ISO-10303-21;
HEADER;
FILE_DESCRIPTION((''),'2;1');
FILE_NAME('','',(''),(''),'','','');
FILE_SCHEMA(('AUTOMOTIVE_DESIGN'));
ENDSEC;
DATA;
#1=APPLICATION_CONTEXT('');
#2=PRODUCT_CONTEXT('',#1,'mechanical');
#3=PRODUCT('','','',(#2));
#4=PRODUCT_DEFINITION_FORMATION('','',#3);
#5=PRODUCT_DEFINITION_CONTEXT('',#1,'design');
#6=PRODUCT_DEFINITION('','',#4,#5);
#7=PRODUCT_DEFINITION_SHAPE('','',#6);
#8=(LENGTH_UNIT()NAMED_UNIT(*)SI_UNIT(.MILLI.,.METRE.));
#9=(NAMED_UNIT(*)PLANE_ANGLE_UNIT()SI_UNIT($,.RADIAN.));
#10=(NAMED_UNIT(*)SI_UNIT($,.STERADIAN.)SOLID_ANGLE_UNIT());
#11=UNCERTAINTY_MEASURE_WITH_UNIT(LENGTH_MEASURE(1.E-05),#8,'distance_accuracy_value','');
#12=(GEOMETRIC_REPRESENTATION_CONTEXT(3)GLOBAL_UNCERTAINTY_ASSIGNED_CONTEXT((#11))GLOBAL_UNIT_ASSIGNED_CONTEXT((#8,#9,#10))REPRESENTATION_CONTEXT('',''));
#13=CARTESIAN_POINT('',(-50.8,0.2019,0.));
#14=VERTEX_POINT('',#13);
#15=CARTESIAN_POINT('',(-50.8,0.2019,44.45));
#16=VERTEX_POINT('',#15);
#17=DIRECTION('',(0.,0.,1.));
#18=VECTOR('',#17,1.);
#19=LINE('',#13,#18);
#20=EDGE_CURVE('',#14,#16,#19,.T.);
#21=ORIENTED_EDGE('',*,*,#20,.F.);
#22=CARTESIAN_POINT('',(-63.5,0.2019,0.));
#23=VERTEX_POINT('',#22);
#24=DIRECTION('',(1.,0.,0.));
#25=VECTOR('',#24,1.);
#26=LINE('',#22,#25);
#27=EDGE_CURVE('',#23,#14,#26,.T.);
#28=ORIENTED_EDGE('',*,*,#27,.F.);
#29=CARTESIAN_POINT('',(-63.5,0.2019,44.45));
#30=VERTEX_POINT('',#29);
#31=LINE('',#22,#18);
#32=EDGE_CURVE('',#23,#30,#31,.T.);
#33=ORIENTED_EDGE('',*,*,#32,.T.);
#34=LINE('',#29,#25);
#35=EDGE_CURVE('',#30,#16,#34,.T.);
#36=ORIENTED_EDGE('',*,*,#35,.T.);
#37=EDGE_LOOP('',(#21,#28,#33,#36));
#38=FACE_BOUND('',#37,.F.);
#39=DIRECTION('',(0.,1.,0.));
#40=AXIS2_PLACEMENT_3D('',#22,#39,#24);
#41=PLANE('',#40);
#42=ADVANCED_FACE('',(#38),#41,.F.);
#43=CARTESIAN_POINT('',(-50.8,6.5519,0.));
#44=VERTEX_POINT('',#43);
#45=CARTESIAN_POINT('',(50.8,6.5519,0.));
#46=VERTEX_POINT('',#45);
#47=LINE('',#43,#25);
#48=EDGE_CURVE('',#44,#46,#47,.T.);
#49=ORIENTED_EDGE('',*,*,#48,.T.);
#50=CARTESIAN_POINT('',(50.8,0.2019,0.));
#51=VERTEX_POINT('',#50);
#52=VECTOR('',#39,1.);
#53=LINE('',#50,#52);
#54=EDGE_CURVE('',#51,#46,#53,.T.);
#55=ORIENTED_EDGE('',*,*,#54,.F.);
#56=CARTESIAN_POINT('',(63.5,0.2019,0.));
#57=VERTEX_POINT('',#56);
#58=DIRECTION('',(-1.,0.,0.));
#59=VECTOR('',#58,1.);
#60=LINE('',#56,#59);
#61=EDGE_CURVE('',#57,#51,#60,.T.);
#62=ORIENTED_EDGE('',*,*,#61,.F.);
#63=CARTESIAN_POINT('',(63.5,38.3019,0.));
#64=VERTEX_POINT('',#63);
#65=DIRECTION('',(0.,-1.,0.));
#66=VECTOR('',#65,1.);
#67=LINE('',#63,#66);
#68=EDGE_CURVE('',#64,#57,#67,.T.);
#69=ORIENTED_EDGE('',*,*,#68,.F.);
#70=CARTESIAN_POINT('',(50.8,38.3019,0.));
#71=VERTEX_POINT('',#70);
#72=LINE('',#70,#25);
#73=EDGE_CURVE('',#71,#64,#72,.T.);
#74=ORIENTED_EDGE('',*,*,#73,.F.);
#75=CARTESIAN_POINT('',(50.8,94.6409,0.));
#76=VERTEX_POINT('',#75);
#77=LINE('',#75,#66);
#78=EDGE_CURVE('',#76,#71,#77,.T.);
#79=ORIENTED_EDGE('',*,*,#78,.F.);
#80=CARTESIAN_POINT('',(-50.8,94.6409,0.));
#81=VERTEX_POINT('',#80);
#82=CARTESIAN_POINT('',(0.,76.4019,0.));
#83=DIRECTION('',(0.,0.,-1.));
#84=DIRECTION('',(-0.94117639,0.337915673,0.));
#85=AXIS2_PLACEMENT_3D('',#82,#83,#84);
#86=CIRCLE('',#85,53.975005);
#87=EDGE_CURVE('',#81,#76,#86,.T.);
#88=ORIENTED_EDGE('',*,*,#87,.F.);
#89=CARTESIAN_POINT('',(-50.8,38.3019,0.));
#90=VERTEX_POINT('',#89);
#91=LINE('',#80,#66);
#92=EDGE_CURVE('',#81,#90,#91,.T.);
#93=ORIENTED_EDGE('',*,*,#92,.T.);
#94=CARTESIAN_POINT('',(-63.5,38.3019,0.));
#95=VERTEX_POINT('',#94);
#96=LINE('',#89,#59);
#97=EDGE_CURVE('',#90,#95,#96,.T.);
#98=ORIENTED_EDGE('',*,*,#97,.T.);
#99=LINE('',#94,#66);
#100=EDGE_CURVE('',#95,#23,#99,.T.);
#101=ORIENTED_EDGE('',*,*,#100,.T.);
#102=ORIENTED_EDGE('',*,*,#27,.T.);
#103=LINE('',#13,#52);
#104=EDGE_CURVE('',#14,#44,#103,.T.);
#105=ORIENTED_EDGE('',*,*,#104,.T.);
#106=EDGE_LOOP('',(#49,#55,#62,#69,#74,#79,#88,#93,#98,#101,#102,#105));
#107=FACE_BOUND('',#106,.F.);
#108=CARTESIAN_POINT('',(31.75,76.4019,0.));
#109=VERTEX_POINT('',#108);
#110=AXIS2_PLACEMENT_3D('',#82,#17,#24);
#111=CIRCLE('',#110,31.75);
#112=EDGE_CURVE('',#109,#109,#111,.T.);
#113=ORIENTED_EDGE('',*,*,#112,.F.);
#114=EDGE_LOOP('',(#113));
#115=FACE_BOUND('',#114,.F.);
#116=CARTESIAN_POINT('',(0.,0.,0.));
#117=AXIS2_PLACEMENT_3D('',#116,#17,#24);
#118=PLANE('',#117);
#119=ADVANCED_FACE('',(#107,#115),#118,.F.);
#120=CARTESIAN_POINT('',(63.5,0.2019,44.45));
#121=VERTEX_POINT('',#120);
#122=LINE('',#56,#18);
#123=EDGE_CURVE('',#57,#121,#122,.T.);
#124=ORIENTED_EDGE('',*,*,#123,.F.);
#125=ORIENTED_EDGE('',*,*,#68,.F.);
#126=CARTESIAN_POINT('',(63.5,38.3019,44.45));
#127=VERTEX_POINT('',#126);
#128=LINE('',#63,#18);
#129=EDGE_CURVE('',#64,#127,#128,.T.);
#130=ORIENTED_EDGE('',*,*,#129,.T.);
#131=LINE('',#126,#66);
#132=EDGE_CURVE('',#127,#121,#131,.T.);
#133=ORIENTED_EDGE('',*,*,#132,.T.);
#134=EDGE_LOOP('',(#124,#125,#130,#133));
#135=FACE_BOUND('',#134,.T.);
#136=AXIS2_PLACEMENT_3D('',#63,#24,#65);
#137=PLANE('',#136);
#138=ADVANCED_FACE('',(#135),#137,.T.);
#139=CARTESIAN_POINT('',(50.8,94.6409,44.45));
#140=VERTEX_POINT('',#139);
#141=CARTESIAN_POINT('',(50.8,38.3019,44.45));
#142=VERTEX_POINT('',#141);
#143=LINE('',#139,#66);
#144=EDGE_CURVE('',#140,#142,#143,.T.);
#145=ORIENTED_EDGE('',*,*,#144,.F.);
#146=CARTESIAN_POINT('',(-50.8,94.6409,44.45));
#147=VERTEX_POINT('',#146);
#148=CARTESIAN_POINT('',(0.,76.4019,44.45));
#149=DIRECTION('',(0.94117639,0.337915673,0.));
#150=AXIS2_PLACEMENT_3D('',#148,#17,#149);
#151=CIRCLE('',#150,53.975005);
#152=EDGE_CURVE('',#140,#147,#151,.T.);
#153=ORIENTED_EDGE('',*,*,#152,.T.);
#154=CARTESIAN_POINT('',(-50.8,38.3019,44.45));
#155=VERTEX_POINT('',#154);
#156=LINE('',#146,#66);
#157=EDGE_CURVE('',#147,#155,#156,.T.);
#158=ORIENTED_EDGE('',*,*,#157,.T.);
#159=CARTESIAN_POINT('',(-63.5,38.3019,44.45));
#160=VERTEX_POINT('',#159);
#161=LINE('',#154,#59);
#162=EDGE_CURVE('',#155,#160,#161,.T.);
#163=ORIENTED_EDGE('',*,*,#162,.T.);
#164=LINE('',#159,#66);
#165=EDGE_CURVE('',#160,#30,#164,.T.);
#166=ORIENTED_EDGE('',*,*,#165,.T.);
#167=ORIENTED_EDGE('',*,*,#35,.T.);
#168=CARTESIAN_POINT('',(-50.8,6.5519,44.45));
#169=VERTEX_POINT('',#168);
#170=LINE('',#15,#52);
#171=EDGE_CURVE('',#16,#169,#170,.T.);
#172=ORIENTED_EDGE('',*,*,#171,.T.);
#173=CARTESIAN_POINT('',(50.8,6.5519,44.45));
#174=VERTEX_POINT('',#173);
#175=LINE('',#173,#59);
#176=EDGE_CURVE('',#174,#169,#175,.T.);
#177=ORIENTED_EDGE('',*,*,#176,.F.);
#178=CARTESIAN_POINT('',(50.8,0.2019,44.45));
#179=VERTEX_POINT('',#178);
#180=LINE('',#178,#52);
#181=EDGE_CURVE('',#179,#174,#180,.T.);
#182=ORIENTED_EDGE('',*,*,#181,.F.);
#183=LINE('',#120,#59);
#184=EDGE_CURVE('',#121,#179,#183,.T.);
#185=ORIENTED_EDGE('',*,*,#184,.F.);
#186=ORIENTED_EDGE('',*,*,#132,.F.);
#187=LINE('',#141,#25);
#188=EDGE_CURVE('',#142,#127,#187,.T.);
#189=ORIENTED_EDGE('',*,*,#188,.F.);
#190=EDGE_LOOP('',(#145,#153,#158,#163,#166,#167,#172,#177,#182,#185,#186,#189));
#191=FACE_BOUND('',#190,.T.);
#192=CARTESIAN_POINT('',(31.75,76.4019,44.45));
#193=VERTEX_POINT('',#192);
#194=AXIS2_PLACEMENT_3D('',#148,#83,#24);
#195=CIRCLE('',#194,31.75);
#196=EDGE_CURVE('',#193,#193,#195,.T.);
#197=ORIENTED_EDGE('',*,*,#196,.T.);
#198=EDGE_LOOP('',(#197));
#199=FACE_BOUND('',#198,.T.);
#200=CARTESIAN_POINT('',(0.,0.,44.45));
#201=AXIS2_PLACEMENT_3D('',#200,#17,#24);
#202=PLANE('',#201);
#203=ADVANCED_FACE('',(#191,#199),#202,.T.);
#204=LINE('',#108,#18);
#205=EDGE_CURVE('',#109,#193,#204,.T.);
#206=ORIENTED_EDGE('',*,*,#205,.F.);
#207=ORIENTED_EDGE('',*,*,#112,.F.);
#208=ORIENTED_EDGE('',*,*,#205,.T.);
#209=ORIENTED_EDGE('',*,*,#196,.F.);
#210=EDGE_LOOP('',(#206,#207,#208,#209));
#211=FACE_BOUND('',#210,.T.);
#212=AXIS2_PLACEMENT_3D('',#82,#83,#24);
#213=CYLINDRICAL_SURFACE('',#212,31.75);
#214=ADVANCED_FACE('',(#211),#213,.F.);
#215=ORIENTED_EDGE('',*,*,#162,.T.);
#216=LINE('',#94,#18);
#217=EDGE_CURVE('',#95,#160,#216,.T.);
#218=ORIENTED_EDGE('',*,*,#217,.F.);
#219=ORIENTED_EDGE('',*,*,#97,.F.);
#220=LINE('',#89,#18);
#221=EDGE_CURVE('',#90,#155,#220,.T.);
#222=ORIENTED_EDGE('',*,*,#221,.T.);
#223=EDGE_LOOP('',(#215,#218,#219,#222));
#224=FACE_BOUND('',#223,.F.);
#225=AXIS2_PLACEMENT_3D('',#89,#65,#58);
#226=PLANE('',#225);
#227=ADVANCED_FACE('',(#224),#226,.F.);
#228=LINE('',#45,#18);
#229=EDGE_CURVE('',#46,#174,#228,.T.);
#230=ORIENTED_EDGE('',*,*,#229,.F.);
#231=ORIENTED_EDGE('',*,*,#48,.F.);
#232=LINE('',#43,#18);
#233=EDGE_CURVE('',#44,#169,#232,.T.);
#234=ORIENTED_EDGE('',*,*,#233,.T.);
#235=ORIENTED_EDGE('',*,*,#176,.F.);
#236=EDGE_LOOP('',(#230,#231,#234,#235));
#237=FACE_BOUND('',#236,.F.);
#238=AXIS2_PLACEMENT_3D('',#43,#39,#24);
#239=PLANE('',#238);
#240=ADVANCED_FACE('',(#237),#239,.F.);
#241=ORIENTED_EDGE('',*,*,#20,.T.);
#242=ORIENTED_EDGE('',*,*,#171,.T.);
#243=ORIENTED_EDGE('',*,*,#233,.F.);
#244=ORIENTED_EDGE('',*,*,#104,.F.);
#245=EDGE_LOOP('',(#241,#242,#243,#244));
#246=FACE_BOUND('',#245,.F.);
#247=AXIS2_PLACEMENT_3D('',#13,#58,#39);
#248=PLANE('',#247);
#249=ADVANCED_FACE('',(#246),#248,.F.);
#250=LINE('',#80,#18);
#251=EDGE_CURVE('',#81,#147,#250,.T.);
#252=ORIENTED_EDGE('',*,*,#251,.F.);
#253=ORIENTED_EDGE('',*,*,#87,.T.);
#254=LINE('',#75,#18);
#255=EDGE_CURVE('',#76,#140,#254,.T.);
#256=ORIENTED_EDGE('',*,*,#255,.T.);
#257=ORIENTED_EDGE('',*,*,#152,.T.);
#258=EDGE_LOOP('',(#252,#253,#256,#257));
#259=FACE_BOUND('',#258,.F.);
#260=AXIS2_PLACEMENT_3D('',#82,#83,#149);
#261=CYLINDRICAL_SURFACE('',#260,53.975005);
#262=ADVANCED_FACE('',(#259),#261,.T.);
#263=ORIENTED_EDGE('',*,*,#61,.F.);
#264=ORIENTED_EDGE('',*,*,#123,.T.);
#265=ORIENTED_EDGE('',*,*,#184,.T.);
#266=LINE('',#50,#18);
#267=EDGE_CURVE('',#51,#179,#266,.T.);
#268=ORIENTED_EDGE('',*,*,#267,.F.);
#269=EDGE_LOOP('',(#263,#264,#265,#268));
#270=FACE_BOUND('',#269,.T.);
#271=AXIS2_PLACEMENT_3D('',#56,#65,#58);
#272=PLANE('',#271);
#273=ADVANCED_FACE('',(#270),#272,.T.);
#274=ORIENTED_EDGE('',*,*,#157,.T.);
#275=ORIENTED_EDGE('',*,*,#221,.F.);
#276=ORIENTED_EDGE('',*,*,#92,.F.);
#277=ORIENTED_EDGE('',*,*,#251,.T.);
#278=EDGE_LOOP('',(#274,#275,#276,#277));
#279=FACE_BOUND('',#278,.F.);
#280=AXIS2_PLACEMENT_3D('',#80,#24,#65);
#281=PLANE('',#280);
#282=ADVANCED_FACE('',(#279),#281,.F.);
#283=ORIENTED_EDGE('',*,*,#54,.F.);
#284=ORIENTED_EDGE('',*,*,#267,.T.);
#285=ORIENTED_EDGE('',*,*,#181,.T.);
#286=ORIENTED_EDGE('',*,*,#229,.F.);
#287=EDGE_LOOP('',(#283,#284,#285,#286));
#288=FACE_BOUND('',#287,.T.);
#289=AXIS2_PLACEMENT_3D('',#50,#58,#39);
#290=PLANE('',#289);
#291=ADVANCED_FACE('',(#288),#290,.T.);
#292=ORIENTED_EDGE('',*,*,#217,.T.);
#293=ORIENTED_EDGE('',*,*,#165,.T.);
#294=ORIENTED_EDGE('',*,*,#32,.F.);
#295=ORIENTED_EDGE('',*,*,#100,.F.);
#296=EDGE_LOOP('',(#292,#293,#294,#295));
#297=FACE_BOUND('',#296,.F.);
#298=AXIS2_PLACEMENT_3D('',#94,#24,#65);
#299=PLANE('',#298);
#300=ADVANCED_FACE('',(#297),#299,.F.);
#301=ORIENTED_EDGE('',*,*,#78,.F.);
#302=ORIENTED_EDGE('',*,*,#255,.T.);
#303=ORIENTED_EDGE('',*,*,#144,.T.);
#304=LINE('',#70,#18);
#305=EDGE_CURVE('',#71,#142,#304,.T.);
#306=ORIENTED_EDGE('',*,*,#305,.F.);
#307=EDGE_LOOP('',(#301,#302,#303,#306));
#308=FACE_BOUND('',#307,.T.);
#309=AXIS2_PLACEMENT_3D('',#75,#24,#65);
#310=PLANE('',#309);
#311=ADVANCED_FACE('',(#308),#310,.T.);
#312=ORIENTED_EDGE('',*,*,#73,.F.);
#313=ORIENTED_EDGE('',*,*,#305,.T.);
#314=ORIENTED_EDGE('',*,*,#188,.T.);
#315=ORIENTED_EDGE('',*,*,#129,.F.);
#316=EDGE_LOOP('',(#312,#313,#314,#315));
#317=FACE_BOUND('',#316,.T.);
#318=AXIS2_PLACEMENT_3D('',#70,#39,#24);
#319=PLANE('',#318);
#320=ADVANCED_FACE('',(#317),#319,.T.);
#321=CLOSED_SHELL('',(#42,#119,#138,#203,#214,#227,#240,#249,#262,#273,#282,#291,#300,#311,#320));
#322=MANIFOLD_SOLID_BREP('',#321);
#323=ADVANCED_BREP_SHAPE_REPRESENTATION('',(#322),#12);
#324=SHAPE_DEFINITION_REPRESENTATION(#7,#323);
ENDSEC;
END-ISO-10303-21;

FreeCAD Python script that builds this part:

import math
import FreeCAD as App
import Part
import Sketcher

V = App.Vector
Q = App.Units.Quantity

doc = App.newDocument("Part")
params = doc.addObject("Spreadsheet::Sheet", "Params")
for row, (alias, value) in enumerate([
    ("sketch1_diameter", "2.5 in"),
    ("sketch1_width", "4 in"),
    ("sketch1_width2", "0.5 in"),
    ("sketch1_height", "1.5 in"),
    ("sketch1_radius", "2.125 in"),
    ("pad1_length", "1.75 in"),
], start=1):
    params.set(f"A{row}", alias)
    params.set(f"B{row}", "=" + value)
    params.setAlias(f"B{row}", alias)

body = doc.addObject("PartDesign::Body", "Body")

# Sketch on XY plane
sketch1 = doc.addObject("Sketcher::SketchObject", "Sketch")
body.addObject(sketch1)
sketch1.AttachmentSupport = (doc.XY_Plane, [""])
sketch1.MapMode = "FlatFace"
sketch1.addGeometry(Part.LineSegment(V(-51, 7, 0), V(51, 7, 0)), False)
sketch1.addGeometry(Part.LineSegment(V(51, 7, 0), V(51, 0, 0)), False)
sketch1.addGeometry(Part.LineSegment(V(51, 0, 0), V(64, 0, 0)), False)
sketch1.addGeometry(Part.LineSegment(V(64, 0, 0), V(64, 38, 0)), False)
sketch1.addGeometry(Part.LineSegment(V(64, 38, 0), V(51, 38, 0)), False)
sketch1.addGeometry(Part.LineSegment(V(51, 38, 0), V(51, 95, 0)), False)
sketch1.addGeometry(Part.ArcOfCircle(Part.Circle(V(0, 76, 0), V(0, 0, 1), 54), math.radians(20), math.radians(160)), False)
sketch1.addGeometry(Part.LineSegment(V(-51, 95, 0), V(-51, 38, 0)), False)
sketch1.addGeometry(Part.LineSegment(V(-51, 38, 0), V(-64, 38, 0)), False)
sketch1.addGeometry(Part.LineSegment(V(-64, 38, 0), V(-64, 0, 0)), False)
sketch1.addGeometry(Part.LineSegment(V(-64, 0, 0), V(-51, 0, 0)), False)
sketch1.addGeometry(Part.LineSegment(V(-51, 0, 0), V(-51, 7, 0)), False)
sketch1.addGeometry(Part.Circle(V(0, 76, 0), V(0, 0, 1), 32), False)
sketch1.addConstraint(Sketcher.Constraint("Coincident", 0, 2, 1, 1))
sketch1.addConstraint(Sketcher.Constraint("Coincident", 1, 2, 2, 1))
sketch1.addConstraint(Sketcher.Constraint("Coincident", 2, 2, 3, 1))
sketch1.addConstraint(Sketcher.Constraint("Coincident", 3, 2, 4, 1))
sketch1.addConstraint(Sketcher.Constraint("Coincident", 4, 2, 5, 1))
sketch1.addConstraint(Sketcher.Constraint("Coincident", 5, 2, 6, 1))
sketch1.addConstraint(Sketcher.Constraint("Coincident", 6, 2, 7, 1))
sketch1.addConstraint(Sketcher.Constraint("Coincident", 7, 2, 8, 1))
sketch1.addConstraint(Sketcher.Constraint("Coincident", 8, 2, 9, 1))
sketch1.addConstraint(Sketcher.Constraint("Coincident", 9, 2, 10, 1))
sketch1.addConstraint(Sketcher.Constraint("Coincident", 10, 2, 11, 1))
sketch1.addConstraint(Sketcher.Constraint("Coincident", 11, 2, 0, 1))
sketch1.addConstraint(Sketcher.Constraint("Horizontal", 0))
sketch1.addConstraint(Sketcher.Constraint("Vertical", 1))
sketch1.addConstraint(Sketcher.Constraint("Horizontal", 2))
sketch1.addConstraint(Sketcher.Constraint("Vertical", 3))
sketch1.addConstraint(Sketcher.Constraint("Horizontal", 4))
sketch1.addConstraint(Sketcher.Constraint("Vertical", 5))
sketch1.addConstraint(Sketcher.Constraint("Vertical", 7))
sketch1.addConstraint(Sketcher.Constraint("Horizontal", 8))
sketch1.addConstraint(Sketcher.Constraint("Vertical", 9))
sketch1.addConstraint(Sketcher.Constraint("Horizontal", 10))
sketch1.addConstraint(Sketcher.Constraint("Vertical", 11))
sketch1.addConstraint(Sketcher.Constraint("Coincident", 12, 3, 6, 3))
sketch1.addConstraint(Sketcher.Constraint("Symmetric", 5, 2, 6, 2, -2))
sketch1.addConstraint(Sketcher.Constraint("Symmetric", 3, 2, 8, 2, -2))
sketch1.addConstraint(Sketcher.Constraint("Symmetric", 1, 2, 10, 2, -2))
sketch1.addConstraint(Sketcher.Constraint("Vertical", 1, 2, 4, 2))
sketch1.addConstraint(Sketcher.Constraint("Diameter", 12, Q("2.5 in")))
sketch1.addConstraint(Sketcher.Constraint("DistanceX", 0, 1, 0, 2, Q("4 in")))
sketch1.addConstraint(Sketcher.Constraint("DistanceX", 2, 1, 2, 2, Q("0.5 in")))
sketch1.addConstraint(Sketcher.Constraint("DistanceY", 3, 1, 3, 2, Q("1.5 in")))
sketch1.addConstraint(Sketcher.Constraint("Radius", 6, Q("2.125 in")))
sketch1.addConstraint(Sketcher.Constraint("DistanceY", 1, 2, 6, 3, Q("3 in")))
sketch1.addConstraint(Sketcher.Constraint("DistanceY", 1, 2, 1, 1, Q("0.25 in")))
sketch1.addConstraint(Sketcher.Constraint("DistanceY", -1, 1, 6, 3, 76.402))
sketch1.setExpression("Constraints[28]", "Params.sketch1_diameter")
sketch1.setExpression("Constraints[29]", "Params.sketch1_width")
sketch1.setExpression("Constraints[30]", "Params.sketch1_width2")
sketch1.setExpression("Constraints[31]", "Params.sketch1_height")
sketch1.setExpression("Constraints[32]", "Params.sketch1_radius")
pad1 = doc.addObject("PartDesign::Pad", "Pad")
body.addObject(pad1)
pad1.Profile = sketch1
pad1.setExpression("Length", "Params.pad1_length")

doc.recompute()
